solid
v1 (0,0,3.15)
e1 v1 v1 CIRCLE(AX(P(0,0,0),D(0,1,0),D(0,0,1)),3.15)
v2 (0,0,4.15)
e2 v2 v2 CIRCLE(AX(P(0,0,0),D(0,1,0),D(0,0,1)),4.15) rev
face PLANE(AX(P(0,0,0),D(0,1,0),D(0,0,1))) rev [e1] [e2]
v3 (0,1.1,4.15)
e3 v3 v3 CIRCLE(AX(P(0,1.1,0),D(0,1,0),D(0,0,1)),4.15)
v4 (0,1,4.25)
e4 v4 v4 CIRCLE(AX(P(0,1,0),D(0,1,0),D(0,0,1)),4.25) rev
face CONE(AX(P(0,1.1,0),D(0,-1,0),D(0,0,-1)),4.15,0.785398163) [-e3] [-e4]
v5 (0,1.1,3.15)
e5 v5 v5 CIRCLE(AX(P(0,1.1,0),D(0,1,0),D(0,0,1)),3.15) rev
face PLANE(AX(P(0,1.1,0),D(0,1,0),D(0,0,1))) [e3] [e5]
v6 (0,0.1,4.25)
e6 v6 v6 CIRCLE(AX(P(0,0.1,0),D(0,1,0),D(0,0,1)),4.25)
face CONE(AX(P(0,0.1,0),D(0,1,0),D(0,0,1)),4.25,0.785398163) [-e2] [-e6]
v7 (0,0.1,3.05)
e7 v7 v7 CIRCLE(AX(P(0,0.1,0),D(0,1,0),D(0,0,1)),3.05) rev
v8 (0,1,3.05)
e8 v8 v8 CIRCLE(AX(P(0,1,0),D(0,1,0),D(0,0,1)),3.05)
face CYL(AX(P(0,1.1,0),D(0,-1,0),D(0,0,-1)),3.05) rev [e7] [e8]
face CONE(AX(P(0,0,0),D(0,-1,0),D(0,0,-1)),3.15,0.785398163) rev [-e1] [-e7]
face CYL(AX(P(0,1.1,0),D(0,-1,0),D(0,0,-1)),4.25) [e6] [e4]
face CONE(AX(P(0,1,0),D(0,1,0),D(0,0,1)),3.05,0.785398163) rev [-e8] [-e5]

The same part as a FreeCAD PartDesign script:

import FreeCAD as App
import Part
import Sketcher
from FreeCAD import Vector


def edges_at(feature, points):
    """Names of the edges that pass closest to the given points."""
    edges = feature.Shape.Edges
    near = lambda p: min(range(len(edges)), key=lambda i: edges[i].distToShape(Part.Vertex(*p))[0])
    return sorted({f"Edge{near(p) + 1}" for p in points})

doc = App.newDocument("Part")
body = doc.addObject("PartDesign::Body", "Body")

# Sketch on XZ plane
sketch1 = doc.addObject("Sketcher::SketchObject", "Sketch")
body.addObject(sketch1)
sketch1.AttachmentSupport = (doc.XZ_Plane, [""])
sketch1.MapMode = "FlatFace"
sketch1.addGeometry([
    Part.Circle(Vector(0, 0, 0), Vector(0, 0, 1), 4.2),
    Part.Circle(Vector(0, 0, 0), Vector(0, 0, 1), 3),
], False)
sketch1.addConstraint([
    Sketcher.Constraint("Coincident", 0, 3, -1, 1),
    Sketcher.Constraint("Coincident", 1, 3, -1, 1),
    Sketcher.Constraint("Diameter", 0, 8.5),
    Sketcher.Constraint("Diameter", 1, 6.1),
])
pad1 = doc.addObject("PartDesign::Pad", "Pad")
body.addObject(pad1)
pad1.Profile = sketch1
pad1.Length = 1.1
pad1.Reversed = True
doc.recompute()

chamfer = doc.addObject("PartDesign::Chamfer", "Chamfer")
body.addObject(chamfer)
chamfer.Base = (pad1, edges_at(pad1, [
    (0, 0, -4.25),
    (0, 1.1, -4.25),
    (0, 0, -3.05),
    (0, 1.1, -3.05),
]))
chamfer.Size = 0.1

doc.recompute()
